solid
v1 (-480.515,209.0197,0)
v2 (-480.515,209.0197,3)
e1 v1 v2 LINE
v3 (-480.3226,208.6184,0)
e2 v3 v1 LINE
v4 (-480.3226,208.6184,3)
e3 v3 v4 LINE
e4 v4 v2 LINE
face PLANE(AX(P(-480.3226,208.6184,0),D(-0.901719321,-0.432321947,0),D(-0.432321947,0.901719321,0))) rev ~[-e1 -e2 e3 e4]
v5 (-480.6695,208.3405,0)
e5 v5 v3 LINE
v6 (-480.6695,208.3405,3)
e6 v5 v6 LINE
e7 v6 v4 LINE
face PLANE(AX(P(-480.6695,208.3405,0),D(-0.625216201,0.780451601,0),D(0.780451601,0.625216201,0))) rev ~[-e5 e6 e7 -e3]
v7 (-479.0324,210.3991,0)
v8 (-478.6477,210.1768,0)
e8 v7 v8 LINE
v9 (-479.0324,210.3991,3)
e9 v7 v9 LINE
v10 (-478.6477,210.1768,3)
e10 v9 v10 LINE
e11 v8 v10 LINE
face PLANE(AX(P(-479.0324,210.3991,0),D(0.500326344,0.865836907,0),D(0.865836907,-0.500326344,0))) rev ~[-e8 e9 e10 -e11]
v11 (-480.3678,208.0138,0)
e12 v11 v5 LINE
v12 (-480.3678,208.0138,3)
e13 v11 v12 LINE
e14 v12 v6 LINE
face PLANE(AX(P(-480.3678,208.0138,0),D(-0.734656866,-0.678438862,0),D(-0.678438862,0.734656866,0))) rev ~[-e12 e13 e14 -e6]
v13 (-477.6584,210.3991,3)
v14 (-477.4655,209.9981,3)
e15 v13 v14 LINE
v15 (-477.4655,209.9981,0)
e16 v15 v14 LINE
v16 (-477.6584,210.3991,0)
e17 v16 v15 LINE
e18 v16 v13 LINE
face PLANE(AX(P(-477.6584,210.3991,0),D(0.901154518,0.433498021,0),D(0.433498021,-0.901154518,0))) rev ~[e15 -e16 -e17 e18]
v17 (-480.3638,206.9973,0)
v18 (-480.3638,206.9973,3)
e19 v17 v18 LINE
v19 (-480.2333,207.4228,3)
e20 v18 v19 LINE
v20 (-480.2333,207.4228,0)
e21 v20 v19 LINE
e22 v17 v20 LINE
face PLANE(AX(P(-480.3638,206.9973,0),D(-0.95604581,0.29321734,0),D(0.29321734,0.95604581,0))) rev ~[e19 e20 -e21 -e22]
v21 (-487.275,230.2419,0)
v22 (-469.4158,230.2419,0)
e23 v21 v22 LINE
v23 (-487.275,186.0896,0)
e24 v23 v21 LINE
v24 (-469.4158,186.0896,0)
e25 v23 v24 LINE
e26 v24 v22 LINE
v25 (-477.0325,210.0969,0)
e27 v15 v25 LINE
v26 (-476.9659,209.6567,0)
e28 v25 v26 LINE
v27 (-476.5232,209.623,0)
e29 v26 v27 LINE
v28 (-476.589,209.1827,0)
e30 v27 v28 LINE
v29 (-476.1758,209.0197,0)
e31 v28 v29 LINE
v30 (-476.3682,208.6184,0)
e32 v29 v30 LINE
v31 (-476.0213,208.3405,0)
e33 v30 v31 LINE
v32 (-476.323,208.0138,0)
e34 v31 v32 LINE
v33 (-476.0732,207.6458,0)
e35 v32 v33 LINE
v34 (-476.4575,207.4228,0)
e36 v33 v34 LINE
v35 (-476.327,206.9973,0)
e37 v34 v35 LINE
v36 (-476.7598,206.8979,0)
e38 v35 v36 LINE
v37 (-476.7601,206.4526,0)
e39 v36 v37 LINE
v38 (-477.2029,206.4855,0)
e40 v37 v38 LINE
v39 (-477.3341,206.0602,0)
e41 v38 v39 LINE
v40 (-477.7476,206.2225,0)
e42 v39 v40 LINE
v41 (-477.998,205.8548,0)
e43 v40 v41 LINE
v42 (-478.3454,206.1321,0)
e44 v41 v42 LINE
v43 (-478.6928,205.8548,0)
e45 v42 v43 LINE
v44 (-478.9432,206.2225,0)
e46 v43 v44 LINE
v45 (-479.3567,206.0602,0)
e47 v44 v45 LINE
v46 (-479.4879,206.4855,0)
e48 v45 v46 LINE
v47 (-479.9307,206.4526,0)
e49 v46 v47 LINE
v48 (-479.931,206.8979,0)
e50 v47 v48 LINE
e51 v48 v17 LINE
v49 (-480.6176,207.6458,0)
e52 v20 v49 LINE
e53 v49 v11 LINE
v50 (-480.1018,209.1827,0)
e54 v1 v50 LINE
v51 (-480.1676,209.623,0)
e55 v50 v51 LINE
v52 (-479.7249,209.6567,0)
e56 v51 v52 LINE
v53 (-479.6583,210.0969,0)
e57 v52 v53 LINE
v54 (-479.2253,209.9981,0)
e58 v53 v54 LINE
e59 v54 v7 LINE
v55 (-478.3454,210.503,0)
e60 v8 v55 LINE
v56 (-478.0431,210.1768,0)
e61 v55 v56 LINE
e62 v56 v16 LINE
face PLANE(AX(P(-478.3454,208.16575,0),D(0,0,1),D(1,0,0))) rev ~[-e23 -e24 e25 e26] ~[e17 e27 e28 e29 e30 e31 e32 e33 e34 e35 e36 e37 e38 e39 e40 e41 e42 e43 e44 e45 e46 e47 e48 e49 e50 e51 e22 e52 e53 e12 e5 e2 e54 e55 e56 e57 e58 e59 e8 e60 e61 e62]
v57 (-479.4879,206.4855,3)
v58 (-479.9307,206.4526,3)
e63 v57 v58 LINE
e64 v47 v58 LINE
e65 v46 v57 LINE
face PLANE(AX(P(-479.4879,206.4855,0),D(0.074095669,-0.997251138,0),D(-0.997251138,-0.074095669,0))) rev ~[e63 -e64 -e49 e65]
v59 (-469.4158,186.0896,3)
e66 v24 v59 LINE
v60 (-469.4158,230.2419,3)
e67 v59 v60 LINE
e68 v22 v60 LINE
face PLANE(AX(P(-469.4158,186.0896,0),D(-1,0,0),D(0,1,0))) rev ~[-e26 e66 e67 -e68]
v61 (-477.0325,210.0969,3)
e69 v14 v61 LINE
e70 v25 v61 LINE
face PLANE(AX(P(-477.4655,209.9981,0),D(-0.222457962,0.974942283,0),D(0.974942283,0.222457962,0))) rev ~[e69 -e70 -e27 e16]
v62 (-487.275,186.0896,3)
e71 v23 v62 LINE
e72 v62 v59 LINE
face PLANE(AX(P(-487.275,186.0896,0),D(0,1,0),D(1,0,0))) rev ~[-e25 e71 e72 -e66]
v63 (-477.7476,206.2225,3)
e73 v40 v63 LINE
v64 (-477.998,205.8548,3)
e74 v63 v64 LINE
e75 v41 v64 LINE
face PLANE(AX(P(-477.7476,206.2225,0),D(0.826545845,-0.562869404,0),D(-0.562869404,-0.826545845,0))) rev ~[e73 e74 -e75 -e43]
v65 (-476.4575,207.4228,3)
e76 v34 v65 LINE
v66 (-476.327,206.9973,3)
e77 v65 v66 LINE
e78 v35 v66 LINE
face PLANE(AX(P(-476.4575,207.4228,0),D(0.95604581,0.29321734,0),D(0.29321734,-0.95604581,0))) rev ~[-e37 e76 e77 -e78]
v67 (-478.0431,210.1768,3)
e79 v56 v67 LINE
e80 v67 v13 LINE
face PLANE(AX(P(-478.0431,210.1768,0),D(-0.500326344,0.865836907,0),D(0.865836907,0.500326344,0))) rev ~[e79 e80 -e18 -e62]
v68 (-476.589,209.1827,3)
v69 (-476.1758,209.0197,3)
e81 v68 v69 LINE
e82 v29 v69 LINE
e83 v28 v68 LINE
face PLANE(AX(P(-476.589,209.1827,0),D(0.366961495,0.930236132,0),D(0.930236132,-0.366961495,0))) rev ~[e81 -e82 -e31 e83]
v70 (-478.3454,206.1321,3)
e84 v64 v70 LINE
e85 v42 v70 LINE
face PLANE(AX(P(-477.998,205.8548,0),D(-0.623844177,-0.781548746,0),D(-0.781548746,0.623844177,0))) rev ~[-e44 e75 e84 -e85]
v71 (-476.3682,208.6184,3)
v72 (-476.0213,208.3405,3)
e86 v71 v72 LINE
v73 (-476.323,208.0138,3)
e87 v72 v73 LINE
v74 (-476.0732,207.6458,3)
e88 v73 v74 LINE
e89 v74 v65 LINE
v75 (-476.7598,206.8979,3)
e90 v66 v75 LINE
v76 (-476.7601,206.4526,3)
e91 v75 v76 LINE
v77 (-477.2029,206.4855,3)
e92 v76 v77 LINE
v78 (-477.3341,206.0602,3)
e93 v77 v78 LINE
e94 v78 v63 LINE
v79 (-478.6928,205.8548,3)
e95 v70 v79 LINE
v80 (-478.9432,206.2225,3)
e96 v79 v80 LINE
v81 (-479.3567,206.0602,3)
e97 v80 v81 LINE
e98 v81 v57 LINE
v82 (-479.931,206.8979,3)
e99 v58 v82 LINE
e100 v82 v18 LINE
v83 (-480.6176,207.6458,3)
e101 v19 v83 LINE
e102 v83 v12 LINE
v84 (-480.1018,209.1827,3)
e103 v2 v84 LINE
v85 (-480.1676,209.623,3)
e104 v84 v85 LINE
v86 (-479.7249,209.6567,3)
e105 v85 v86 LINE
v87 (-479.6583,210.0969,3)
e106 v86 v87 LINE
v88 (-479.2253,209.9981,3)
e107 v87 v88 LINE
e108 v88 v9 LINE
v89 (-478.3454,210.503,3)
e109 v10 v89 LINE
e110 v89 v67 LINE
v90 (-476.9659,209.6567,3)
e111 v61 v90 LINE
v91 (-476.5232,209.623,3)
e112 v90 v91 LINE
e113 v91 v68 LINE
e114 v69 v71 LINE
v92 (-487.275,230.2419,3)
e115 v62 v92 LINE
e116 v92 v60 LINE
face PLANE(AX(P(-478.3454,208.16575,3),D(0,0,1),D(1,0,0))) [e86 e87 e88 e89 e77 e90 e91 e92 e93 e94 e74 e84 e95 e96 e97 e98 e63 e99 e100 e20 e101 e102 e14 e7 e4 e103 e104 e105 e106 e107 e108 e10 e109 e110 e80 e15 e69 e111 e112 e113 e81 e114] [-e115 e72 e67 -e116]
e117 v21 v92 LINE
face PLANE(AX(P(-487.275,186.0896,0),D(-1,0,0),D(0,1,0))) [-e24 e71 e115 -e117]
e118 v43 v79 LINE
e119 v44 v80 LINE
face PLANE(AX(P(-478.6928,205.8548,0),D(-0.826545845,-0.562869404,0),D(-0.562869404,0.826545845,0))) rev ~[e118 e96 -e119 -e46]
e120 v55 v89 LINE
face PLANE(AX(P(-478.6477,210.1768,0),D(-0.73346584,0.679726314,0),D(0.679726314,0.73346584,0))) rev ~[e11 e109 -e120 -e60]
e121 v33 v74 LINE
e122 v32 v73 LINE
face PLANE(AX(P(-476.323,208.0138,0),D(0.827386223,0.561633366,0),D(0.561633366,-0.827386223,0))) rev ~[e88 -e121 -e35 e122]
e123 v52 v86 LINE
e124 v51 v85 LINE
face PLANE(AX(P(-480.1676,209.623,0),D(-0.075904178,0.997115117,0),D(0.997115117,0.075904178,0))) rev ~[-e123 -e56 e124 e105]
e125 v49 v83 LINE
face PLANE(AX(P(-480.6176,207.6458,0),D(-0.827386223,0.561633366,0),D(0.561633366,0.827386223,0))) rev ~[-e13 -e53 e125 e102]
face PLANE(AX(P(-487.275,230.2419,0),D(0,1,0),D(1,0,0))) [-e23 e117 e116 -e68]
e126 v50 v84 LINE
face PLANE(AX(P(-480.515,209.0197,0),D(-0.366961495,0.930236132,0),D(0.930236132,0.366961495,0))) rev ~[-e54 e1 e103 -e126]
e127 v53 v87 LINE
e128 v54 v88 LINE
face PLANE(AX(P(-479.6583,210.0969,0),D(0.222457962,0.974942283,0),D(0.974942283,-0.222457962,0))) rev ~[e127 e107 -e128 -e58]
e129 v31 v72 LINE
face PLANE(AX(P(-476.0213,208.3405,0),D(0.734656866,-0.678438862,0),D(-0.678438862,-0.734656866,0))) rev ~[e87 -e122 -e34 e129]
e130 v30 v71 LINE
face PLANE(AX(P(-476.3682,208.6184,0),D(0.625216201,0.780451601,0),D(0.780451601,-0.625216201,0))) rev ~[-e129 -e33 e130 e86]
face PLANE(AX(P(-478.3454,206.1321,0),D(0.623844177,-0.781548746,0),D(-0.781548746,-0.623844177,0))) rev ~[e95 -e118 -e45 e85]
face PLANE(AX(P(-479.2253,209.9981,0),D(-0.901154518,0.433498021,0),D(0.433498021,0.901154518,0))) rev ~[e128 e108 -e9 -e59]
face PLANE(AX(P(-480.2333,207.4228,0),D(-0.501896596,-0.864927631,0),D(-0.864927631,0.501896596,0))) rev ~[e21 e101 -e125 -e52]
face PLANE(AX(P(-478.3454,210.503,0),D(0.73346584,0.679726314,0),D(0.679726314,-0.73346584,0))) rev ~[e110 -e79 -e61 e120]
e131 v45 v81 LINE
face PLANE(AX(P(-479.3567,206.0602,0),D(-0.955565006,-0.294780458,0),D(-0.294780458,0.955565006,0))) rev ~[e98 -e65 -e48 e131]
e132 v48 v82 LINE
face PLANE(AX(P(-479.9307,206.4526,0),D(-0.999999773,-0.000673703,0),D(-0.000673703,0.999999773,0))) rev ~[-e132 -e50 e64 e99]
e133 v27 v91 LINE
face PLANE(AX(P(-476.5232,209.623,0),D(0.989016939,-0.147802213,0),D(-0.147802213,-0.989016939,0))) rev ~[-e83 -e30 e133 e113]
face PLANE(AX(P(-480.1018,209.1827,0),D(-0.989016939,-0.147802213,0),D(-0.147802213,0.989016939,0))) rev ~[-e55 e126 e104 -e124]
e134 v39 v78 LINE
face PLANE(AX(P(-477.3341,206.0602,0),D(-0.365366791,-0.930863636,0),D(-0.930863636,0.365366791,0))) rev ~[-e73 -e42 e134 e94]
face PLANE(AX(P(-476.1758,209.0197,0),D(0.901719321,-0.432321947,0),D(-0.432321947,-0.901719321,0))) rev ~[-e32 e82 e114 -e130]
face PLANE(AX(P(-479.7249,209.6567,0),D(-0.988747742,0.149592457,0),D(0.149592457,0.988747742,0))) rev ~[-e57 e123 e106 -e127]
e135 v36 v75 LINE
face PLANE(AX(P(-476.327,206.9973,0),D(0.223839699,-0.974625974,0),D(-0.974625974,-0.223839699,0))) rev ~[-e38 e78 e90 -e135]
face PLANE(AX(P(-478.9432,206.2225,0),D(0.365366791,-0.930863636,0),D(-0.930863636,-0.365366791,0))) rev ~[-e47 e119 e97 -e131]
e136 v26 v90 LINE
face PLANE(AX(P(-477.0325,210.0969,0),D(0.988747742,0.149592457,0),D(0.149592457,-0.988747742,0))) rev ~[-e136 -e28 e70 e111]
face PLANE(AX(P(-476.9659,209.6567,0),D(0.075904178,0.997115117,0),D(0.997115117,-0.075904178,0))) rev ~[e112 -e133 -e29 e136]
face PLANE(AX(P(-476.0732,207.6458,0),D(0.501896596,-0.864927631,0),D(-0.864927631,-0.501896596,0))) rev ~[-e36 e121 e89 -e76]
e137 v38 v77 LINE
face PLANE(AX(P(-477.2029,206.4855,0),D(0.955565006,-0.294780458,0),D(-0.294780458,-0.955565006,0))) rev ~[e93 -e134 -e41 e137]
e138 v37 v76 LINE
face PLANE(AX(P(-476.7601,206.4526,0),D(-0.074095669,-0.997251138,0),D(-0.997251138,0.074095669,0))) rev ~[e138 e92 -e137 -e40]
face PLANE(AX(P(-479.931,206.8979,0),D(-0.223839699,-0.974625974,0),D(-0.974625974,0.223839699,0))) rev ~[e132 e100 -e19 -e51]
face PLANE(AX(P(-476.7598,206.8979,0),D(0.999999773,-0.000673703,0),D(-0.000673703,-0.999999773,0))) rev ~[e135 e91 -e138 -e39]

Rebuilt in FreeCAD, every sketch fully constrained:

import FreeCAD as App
import Part
import Sketcher


def add_polygon(sketch, points):
    """Adds a closed chain of lines whose ends are joined by coincident constraints."""
    first, n = sketch.GeometryCount, len(points)
    for a, b in zip(points, points[1:] + points[:1]):
        sketch.addGeometry(Part.LineSegment(App.Vector(*a, 0), App.Vector(*b, 0)), False)
    for i in range(n):
        sketch.addConstraint(Sketcher.Constraint("Coincident", first + i, 2, first + (i + 1) % n, 1))

doc = App.newDocument("Part")
body = doc.addObject("PartDesign::Body", "Body")

# Sketch on XY plane
sketch1 = body.newObject("Sketcher::SketchObject", "Sketch")
sketch1.AttachmentSupport = (doc.getObject("XY_Plane"), [""])
sketch1.MapMode = "FlatFace"
add_polygon(sketch1, [(-487.27, 230.24), (-487.27, 186.09), (-469.42, 186.09), (-469.42, 230.24)])  # lines 0-3
add_polygon(sketch1, [(-478.65, 210.18), (-478.35, 210.5), (-478.04, 210.18), (-477.66, 210.4), (-477.47, 210), (-477.03, 210.1), (-476.97, 209.66), (-476.52, 209.62), (-476.59, 209.18), (-476.18, 209.02), (-476.37, 208.62), (-476.02, 208.34), (-476.32, 208.01), (-476.07, 207.65), (-476.46, 207.42), (-476.33, 207), (-476.76, 206.9), (-476.76, 206.45), (-477.2, 206.49), (-477.33, 206.06), (-477.75, 206.22), (-478, 205.85), (-478.35, 206.13), (-478.69, 205.85), (-478.94, 206.22), (-479.36, 206.06), (-479.49, 206.49), (-479.93, 206.45), (-479.93, 206.9), (-480.36, 207), (-480.23, 207.42), (-480.62, 207.65), (-480.37, 208.01), (-480.67, 208.34), (-480.32, 208.62), (-480.51, 209.02), (-480.1, 209.18), (-480.17, 209.62), (-479.72, 209.66), (-479.66, 210.1), (-479.23, 210), (-479.03, 210.4)])  # lines 4-45
sketch1.addConstraint(Sketcher.Constraint("Vertical", 0))
sketch1.addConstraint(Sketcher.Constraint("Horizontal", 1))
sketch1.addConstraint(Sketcher.Constraint("Vertical", 2))
sketch1.addConstraint(Sketcher.Constraint("Horizontal", 3))
sketch1.addConstraint(Sketcher.Constraint("Horizontal", 24, 2, 26, 2))
sketch1.addConstraint(Sketcher.Constraint("Horizontal", 23, 2, 27, 2))
sketch1.addConstraint(Sketcher.Constraint("Horizontal", 22, 2, 28, 2))
sketch1.addConstraint(Sketcher.Constraint("Horizontal", 21, 2, 29, 2))
sketch1.addConstraint(Sketcher.Constraint("Horizontal", 20, 2, 30, 2))
sketch1.addConstraint(Sketcher.Constraint("Horizontal", 19, 2, 31, 2))
sketch1.addConstraint(Sketcher.Constraint("Horizontal", 18, 2, 32, 2))
sketch1.addConstraint(Sketcher.Constraint("Horizontal", 17, 2, 33, 2))
sketch1.addConstraint(Sketcher.Constraint("Horizontal", 16, 2, 34, 2))
sketch1.addConstraint(Sketcher.Constraint("Horizontal", 15, 2, 35, 2))
sketch1.addConstraint(Sketcher.Constraint("Horizontal", 14, 2, 36, 2))
sketch1.addConstraint(Sketcher.Constraint("Horizontal", 13, 2, 37, 2))
sketch1.addConstraint(Sketcher.Constraint("Horizontal", 12, 2, 38, 2))
sketch1.addConstraint(Sketcher.Constraint("Horizontal", 11, 2, 39, 2))
sketch1.addConstraint(Sketcher.Constraint("Horizontal", 10, 2, 40, 2))
sketch1.addConstraint(Sketcher.Constraint("Horizontal", 9, 2, 41, 2))
sketch1.addConstraint(Sketcher.Constraint("Horizontal", 8, 2, 42, 2))
sketch1.addConstraint(Sketcher.Constraint("Horizontal", 7, 2, 43, 2))
sketch1.addConstraint(Sketcher.Constraint("Horizontal", 6, 2, 44, 2))
sketch1.addConstraint(Sketcher.Constraint("Horizontal", 5, 2, 45, 2))
sketch1.addConstraint(Sketcher.Constraint("Vertical", 4, 2, 25, 2))
sketch1.addConstraint(Sketcher.Constraint("Equal", 4, 5))
sketch1.addConstraint(Sketcher.Constraint("Equal", 25, 26))
sketch1.addConstraint(Sketcher.Constraint("Equal", 24, 27))
sketch1.addConstraint(Sketcher.Constraint("Equal", 23, 28))
sketch1.addConstraint(Sketcher.Constraint("Equal", 22, 29))
sketch1.addConstraint(Sketcher.Constraint("Equal", 21, 30))
sketch1.addConstraint(Sketcher.Constraint("Equal", 19, 32))
sketch1.addConstraint(Sketcher.Constraint("Equal", 18, 33))
sketch1.addConstraint(Sketcher.Constraint("Equal", 17, 34))
sketch1.addConstraint(Sketcher.Constraint("Equal", 16, 35))
sketch1.addConstraint(Sketcher.Constraint("Equal", 15, 36))
sketch1.addConstraint(Sketcher.Constraint("Equal", 14, 37))
sketch1.addConstraint(Sketcher.Constraint("Equal", 13, 38))
sketch1.addConstraint(Sketcher.Constraint("Equal", 12, 39))
sketch1.addConstraint(Sketcher.Constraint("Equal", 11, 40))
sketch1.addConstraint(Sketcher.Constraint("Equal", 10, 41))
sketch1.addConstraint(Sketcher.Constraint("Equal", 9, 42))
sketch1.addConstraint(Sketcher.Constraint("Equal", 8, 43))
sketch1.addConstraint(Sketcher.Constraint("Equal", 7, 44))
sketch1.addConstraint(Sketcher.Constraint("Equal", 6, 45))
sketch1.addConstraint(Sketcher.Constraint("DistanceX", 1, 1, 1, 2, 17.8592))
sketch1.addConstraint(Sketcher.Constraint("DistanceY", 0, 2, 0, 1, 44.1523))
sketch1.addConstraint(Sketcher.Constraint("DistanceX", 0, 2, -1, 1, 487.275))
sketch1.addConstraint(Sketcher.Constraint("DistanceY", -1, 1, 4, 2, 210.503))
sketch1.addConstraint(Sketcher.Constraint("DistanceY", -1, 1, 10, 2, 209.623))
sketch1.addConstraint(Sketcher.Constraint("DistanceX", 11, 2, -1, 1, 476.589))
sketch1.addConstraint(Sketcher.Constraint("DistanceX", 15, 2, -1, 1, 476.323))
sketch1.addConstraint(Sketcher.Constraint("DistanceX", 18, 2, -1, 1, 476.327))
sketch1.addConstraint(Sketcher.Constraint("DistanceX", 24, 2, -1, 1, 477.998))
sketch1.addConstraint(Sketcher.Constraint("DistanceX", 31, 2, -1, 1, 479.931))
sketch1.addConstraint(Sketcher.Constraint("DistanceX", 38, 2, -1, 1, 480.515))
sketch1.addConstraint(Sketcher.Constraint("DistanceX", 4, 2, 6, 2, 0.687))
sketch1.addConstraint(Sketcher.Constraint("DistanceY", 7, 2, 6, 2, 0.401))
sketch1.addConstraint(Sketcher.Constraint("DistanceX", 7, 2, 8, 2, 0.433))
sketch1.addConstraint(Sketcher.Constraint("DistanceY", 8, 2, 2, 2, 20.145))
sketch1.addConstraint(Sketcher.Constraint("DistanceY", 11, 2, 9, 2, 0.474))
sketch1.addConstraint(Sketcher.Constraint("DistanceY", 12, 2, 11, 2, 0.163))
sketch1.addConstraint(Sketcher.Constraint("DistanceX", 10, 2, 13, 2, 0.155))
sketch1.addConstraint(Sketcher.Constraint("DistanceY", 16, 2, 15, 2, 0.368))
sketch1.addConstraint(Sketcher.Constraint("DistanceX", 13, 2, 16, 2, 0.295))
sketch1.addConstraint(Sketcher.Constraint("DistanceY", 17, 2, 16, 2, 0.223))
sketch1.addConstraint(Sketcher.Constraint("DistanceX", 22, 2, 20, 2, 0.574))
sketch1.addConstraint(Sketcher.Constraint("DistanceY", 23, 2, 21, 2, 0.263))
sketch1.addConstraint(Sketcher.Constraint("Distance", 20, 0.4453))
sketch1.addConstraint(Sketcher.Constraint("DistanceY", -1, 1, 0, 2, 186.0896))
sketch1.addConstraint(Sketcher.Constraint("DistanceX", 4, 2, -1, 1, 478.3454))
sketch1.addConstraint(Sketcher.Constraint("DistanceX", 5, 2, -1, 1, 478.0431))
sketch1.addConstraint(Sketcher.Constraint("DistanceY", -1, 1, 5, 2, 210.1768))
sketch1.addConstraint(Sketcher.Constraint("DistanceY", -1, 1, 6, 2, 210.3991))
sketch1.addConstraint(Sketcher.Constraint("DistanceX", 7, 2, -1, 1, 477.4655))
sketch1.addConstraint(Sketcher.Constraint("DistanceX", 9, 2, -1, 1, 476.9659))
sketch1.addConstraint(Sketcher.Constraint("DistanceY", -1, 1, 9, 2, 209.6567))
sketch1.addConstraint(Sketcher.Constraint("DistanceX", 10, 2, -1, 1, 476.5232))
sketch1.addConstraint(Sketcher.Constraint("DistanceY", -1, 1, 13, 2, 208.6184))
sketch1.addConstraint(Sketcher.Constraint("DistanceX", 14, 2, -1, 1, 476.0213))
sketch1.addConstraint(Sketcher.Constraint("DistanceY", -1, 1, 14, 2, 208.3405))
sketch1.addConstraint(Sketcher.Constraint("DistanceY", -1, 1, 15, 2, 208.0138))
sketch1.addConstraint(Sketcher.Constraint("DistanceX", 17, 2, -1, 1, 476.4575))
sketch1.addConstraint(Sketcher.Constraint("DistanceY", -1, 1, 18, 2, 206.9973))
sketch1.addConstraint(Sketcher.Constraint("DistanceY", -1, 1, 19, 2, 206.8979))
sketch1.addConstraint(Sketcher.Constraint("DistanceX", 20, 2, -1, 1, 476.7601))
sketch1.addConstraint(Sketcher.Constraint("DistanceX", 21, 2, -1, 1, 477.2029))
sketch1.addConstraint(Sketcher.Constraint("DistanceY", -1, 1, 21, 2, 206.4855))
sketch1.addConstraint(Sketcher.Constraint("DistanceY", -1, 1, 22, 2, 206.0602))
sketch1.addConstraint(Sketcher.Constraint("DistanceX", 23, 2, -1, 1, 477.7476))
sketch1.addConstraint(Sketcher.Constraint("DistanceY", -1, 1, 24, 2, 205.8548))
sketch1.addConstraint(Sketcher.Constraint("DistanceY", -1, 1, 25, 2, 206.1321))
pad1 = body.newObject("PartDesign::Pad", "Pad")
pad1.Profile = sketch1
pad1.Length = 3

doc.recompute()
